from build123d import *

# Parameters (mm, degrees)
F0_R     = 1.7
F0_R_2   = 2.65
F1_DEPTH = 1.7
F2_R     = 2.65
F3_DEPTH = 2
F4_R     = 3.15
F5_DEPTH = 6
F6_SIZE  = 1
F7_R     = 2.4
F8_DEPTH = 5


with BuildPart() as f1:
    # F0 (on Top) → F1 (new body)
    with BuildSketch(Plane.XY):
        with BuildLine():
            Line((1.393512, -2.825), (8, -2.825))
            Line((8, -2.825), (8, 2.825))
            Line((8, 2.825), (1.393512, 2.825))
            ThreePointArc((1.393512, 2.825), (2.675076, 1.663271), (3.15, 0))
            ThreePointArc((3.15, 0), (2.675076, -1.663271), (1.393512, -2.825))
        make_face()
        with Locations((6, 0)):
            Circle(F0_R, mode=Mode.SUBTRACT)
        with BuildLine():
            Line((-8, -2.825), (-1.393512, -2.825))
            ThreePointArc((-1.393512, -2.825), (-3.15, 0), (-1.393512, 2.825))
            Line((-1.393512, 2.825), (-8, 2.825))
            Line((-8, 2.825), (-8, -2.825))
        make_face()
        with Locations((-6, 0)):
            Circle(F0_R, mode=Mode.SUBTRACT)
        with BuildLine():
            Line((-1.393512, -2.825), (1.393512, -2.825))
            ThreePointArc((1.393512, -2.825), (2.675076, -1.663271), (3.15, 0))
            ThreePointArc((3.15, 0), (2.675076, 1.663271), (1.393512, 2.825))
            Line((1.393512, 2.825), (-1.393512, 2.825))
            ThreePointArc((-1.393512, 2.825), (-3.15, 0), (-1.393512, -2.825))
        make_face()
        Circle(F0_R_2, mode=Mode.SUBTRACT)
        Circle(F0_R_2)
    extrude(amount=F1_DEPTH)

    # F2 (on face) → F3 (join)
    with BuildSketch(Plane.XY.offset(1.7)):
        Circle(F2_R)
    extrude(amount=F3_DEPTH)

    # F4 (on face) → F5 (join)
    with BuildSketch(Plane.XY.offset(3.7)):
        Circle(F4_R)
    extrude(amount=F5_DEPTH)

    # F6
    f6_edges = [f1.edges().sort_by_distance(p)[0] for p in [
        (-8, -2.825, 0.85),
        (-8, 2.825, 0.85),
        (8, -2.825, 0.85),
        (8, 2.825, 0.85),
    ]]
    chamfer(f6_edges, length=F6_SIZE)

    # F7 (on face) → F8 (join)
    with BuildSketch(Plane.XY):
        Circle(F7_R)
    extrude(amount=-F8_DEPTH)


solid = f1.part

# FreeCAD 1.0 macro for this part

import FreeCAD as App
import Part
import Sketcher
Q = App.Units.Quantity


def edges_at(feature, points):
    """Names of the edges that pass closest to the given points."""
    edges = feature.Shape.Edges
    near = lambda p: min(range(len(edges)), key=lambda i: edges[i].distToShape(Part.Vertex(*p))[0])
    return sorted({f"Edge{near(p) + 1}" for p in points})

doc = App.newDocument("Part")
body = doc.addObject("PartDesign::Body", "Body")

# Sketch on XY plane
sketch1 = body.newObject("Sketcher::SketchObject", "Sketch")
sketch1.AttachmentSupport = (doc.getObject("XY_Plane"), [""])
sketch1.MapMode = "FlatFace"
sketch1.addGeometry(Part.LineSegment(App.Vector(8, -2.8, 0), App.Vector(8, 2.8, 0)), False)
sketch1.addGeometry(Part.LineSegment(App.Vector(8, 2.8, 0), App.Vector(-8, 2.8, 0)), False)
sketch1.addGeometry(Part.LineSegment(App.Vector(-8, 2.8, 0), App.Vector(-8, -2.8, 0)), False)
sketch1.addGeometry(Part.LineSegment(App.Vector(-8, -2.8, 0), App.Vector(8, -2.8, 0)), False)
sketch1.addGeometry(Part.Circle(App.Vector(-6, 0, 0), App.Vector(0, 0, 1), 1.7), False)
sketch1.addGeometry(Part.Circle(App.Vector(6, 0, 0), App.Vector(0, 0, 1), 1.7), False)
sketch1.addConstraint(Sketcher.Constraint("Coincident", 0, 2, 1, 1))
sketch1.addConstraint(Sketcher.Constraint("Coincident", 1, 2, 2, 1))
sketch1.addConstraint(Sketcher.Constraint("Coincident", 2, 2, 3, 1))
sketch1.addConstraint(Sketcher.Constraint("Coincident", 3, 2, 0, 1))
sketch1.addConstraint(Sketcher.Constraint("Vertical", 0))
sketch1.addConstraint(Sketcher.Constraint("Horizontal", 1))
sketch1.addConstraint(Sketcher.Constraint("Vertical", 2))
sketch1.addConstraint(Sketcher.Constraint("Horizontal", 3))
sketch1.addConstraint(Sketcher.Constraint("Equal", 4, 5))
sketch1.addConstraint(Sketcher.Constraint("Symmetric", 4, 3, 5, 3, -1, 1))
sketch1.addConstraint(Sketcher.Constraint("Symmetric", 0, 2, 2, 2, -1, 1))
sketch1.addConstraint(Sketcher.Constraint("PointOnObject", 4, 3, -1))
sketch1.addConstraint(Sketcher.Constraint("Diameter", 4, Q("3.4 mm")))
sketch1.addConstraint(Sketcher.Constraint("DistanceX", 1, 2, 1, 1, Q("16 mm")))
sketch1.addConstraint(Sketcher.Constraint("DistanceX", 4, 3, -1, 1, Q("6 mm")))
sketch1.addConstraint(Sketcher.Constraint("DistanceY", 0, 1, 0, 2, Q("5.65 mm")))
pad1 = body.newObject("PartDesign::Pad", "Pad")
pad1.Profile = sketch1
pad1.Length = 1.7

# Sketch on XY plane
sketch2 = body.newObject("Sketcher::SketchObject", "Sketch001")
sketch2.AttachmentSupport = (doc.getObject("XY_Plane"), [""])
sketch2.MapMode = "FlatFace"
sketch2.AttachmentOffset = App.Placement(App.Vector(0, 0, 1.7), App.Rotation())
sketch2.addGeometry(Part.Circle(App.Vector(0, 0, 0), App.Vector(0, 0, 1), 2.6), False)
sketch2.addConstraint(Sketcher.Constraint("Coincident", 0, 3, -1, 1))
sketch2.addConstraint(Sketcher.Constraint("Diameter", 0, Q("5.3 mm")))
pad2 = body.newObject("PartDesign::Pad", "Pad001")
pad2.Profile = sketch2
pad2.Length = 2

# Sketch on XY plane
sketch3 = body.newObject("Sketcher::SketchObject", "Sketch002")
sketch3.AttachmentSupport = (doc.getObject("XY_Plane"), [""])
sketch3.MapMode = "FlatFace"
sketch3.AttachmentOffset = App.Placement(App.Vector(0, 0, 3.7), App.Rotation())
sketch3.addGeometry(Part.Circle(App.Vector(0, 0, 0), App.Vector(0, 0, 1), 3.1), False)
sketch3.addConstraint(Sketcher.Constraint("Coincident", 0, 3, -1, 1))
sketch3.addConstraint(Sketcher.Constraint("Diameter", 0, Q("6.3 mm")))
pad3 = body.newObject("PartDesign::Pad", "Pad002")
pad3.Profile = sketch3
pad3.Length = 6
doc.recompute()

chamfer = body.newObject("PartDesign::Chamfer", "Chamfer")
chamfer.Base = (pad3, edges_at(pad3, [
    (-8, -2.825, 0.85),
    (-8, 2.825, 0.85),
    (8, -2.825, 0.85),
    (8, 2.825, 0.85),
]))
chamfer.Size = 1

# Sketch on XY plane
sketch4 = body.newObject("Sketcher::SketchObject", "Sketch003")
sketch4.AttachmentSupport = (doc.getObject("XY_Plane"), [""])
sketch4.MapMode = "FlatFace"
sketch4.addGeometry(Part.Circle(App.Vector(0, 0, 0), App.Vector(0, 0, 1), 2.4), False)
sketch4.addConstraint(Sketcher.Constraint("Coincident", 0, 3, -1, 1))
sketch4.addConstraint(Sketcher.Constraint("Diameter", 0, Q("4.8 mm")))
pad4 = body.newObject("PartDesign::Pad", "Pad003")
pad4.Profile = sketch4
pad4.Length = 5
pad4.Reversed = True

doc.recompute()
